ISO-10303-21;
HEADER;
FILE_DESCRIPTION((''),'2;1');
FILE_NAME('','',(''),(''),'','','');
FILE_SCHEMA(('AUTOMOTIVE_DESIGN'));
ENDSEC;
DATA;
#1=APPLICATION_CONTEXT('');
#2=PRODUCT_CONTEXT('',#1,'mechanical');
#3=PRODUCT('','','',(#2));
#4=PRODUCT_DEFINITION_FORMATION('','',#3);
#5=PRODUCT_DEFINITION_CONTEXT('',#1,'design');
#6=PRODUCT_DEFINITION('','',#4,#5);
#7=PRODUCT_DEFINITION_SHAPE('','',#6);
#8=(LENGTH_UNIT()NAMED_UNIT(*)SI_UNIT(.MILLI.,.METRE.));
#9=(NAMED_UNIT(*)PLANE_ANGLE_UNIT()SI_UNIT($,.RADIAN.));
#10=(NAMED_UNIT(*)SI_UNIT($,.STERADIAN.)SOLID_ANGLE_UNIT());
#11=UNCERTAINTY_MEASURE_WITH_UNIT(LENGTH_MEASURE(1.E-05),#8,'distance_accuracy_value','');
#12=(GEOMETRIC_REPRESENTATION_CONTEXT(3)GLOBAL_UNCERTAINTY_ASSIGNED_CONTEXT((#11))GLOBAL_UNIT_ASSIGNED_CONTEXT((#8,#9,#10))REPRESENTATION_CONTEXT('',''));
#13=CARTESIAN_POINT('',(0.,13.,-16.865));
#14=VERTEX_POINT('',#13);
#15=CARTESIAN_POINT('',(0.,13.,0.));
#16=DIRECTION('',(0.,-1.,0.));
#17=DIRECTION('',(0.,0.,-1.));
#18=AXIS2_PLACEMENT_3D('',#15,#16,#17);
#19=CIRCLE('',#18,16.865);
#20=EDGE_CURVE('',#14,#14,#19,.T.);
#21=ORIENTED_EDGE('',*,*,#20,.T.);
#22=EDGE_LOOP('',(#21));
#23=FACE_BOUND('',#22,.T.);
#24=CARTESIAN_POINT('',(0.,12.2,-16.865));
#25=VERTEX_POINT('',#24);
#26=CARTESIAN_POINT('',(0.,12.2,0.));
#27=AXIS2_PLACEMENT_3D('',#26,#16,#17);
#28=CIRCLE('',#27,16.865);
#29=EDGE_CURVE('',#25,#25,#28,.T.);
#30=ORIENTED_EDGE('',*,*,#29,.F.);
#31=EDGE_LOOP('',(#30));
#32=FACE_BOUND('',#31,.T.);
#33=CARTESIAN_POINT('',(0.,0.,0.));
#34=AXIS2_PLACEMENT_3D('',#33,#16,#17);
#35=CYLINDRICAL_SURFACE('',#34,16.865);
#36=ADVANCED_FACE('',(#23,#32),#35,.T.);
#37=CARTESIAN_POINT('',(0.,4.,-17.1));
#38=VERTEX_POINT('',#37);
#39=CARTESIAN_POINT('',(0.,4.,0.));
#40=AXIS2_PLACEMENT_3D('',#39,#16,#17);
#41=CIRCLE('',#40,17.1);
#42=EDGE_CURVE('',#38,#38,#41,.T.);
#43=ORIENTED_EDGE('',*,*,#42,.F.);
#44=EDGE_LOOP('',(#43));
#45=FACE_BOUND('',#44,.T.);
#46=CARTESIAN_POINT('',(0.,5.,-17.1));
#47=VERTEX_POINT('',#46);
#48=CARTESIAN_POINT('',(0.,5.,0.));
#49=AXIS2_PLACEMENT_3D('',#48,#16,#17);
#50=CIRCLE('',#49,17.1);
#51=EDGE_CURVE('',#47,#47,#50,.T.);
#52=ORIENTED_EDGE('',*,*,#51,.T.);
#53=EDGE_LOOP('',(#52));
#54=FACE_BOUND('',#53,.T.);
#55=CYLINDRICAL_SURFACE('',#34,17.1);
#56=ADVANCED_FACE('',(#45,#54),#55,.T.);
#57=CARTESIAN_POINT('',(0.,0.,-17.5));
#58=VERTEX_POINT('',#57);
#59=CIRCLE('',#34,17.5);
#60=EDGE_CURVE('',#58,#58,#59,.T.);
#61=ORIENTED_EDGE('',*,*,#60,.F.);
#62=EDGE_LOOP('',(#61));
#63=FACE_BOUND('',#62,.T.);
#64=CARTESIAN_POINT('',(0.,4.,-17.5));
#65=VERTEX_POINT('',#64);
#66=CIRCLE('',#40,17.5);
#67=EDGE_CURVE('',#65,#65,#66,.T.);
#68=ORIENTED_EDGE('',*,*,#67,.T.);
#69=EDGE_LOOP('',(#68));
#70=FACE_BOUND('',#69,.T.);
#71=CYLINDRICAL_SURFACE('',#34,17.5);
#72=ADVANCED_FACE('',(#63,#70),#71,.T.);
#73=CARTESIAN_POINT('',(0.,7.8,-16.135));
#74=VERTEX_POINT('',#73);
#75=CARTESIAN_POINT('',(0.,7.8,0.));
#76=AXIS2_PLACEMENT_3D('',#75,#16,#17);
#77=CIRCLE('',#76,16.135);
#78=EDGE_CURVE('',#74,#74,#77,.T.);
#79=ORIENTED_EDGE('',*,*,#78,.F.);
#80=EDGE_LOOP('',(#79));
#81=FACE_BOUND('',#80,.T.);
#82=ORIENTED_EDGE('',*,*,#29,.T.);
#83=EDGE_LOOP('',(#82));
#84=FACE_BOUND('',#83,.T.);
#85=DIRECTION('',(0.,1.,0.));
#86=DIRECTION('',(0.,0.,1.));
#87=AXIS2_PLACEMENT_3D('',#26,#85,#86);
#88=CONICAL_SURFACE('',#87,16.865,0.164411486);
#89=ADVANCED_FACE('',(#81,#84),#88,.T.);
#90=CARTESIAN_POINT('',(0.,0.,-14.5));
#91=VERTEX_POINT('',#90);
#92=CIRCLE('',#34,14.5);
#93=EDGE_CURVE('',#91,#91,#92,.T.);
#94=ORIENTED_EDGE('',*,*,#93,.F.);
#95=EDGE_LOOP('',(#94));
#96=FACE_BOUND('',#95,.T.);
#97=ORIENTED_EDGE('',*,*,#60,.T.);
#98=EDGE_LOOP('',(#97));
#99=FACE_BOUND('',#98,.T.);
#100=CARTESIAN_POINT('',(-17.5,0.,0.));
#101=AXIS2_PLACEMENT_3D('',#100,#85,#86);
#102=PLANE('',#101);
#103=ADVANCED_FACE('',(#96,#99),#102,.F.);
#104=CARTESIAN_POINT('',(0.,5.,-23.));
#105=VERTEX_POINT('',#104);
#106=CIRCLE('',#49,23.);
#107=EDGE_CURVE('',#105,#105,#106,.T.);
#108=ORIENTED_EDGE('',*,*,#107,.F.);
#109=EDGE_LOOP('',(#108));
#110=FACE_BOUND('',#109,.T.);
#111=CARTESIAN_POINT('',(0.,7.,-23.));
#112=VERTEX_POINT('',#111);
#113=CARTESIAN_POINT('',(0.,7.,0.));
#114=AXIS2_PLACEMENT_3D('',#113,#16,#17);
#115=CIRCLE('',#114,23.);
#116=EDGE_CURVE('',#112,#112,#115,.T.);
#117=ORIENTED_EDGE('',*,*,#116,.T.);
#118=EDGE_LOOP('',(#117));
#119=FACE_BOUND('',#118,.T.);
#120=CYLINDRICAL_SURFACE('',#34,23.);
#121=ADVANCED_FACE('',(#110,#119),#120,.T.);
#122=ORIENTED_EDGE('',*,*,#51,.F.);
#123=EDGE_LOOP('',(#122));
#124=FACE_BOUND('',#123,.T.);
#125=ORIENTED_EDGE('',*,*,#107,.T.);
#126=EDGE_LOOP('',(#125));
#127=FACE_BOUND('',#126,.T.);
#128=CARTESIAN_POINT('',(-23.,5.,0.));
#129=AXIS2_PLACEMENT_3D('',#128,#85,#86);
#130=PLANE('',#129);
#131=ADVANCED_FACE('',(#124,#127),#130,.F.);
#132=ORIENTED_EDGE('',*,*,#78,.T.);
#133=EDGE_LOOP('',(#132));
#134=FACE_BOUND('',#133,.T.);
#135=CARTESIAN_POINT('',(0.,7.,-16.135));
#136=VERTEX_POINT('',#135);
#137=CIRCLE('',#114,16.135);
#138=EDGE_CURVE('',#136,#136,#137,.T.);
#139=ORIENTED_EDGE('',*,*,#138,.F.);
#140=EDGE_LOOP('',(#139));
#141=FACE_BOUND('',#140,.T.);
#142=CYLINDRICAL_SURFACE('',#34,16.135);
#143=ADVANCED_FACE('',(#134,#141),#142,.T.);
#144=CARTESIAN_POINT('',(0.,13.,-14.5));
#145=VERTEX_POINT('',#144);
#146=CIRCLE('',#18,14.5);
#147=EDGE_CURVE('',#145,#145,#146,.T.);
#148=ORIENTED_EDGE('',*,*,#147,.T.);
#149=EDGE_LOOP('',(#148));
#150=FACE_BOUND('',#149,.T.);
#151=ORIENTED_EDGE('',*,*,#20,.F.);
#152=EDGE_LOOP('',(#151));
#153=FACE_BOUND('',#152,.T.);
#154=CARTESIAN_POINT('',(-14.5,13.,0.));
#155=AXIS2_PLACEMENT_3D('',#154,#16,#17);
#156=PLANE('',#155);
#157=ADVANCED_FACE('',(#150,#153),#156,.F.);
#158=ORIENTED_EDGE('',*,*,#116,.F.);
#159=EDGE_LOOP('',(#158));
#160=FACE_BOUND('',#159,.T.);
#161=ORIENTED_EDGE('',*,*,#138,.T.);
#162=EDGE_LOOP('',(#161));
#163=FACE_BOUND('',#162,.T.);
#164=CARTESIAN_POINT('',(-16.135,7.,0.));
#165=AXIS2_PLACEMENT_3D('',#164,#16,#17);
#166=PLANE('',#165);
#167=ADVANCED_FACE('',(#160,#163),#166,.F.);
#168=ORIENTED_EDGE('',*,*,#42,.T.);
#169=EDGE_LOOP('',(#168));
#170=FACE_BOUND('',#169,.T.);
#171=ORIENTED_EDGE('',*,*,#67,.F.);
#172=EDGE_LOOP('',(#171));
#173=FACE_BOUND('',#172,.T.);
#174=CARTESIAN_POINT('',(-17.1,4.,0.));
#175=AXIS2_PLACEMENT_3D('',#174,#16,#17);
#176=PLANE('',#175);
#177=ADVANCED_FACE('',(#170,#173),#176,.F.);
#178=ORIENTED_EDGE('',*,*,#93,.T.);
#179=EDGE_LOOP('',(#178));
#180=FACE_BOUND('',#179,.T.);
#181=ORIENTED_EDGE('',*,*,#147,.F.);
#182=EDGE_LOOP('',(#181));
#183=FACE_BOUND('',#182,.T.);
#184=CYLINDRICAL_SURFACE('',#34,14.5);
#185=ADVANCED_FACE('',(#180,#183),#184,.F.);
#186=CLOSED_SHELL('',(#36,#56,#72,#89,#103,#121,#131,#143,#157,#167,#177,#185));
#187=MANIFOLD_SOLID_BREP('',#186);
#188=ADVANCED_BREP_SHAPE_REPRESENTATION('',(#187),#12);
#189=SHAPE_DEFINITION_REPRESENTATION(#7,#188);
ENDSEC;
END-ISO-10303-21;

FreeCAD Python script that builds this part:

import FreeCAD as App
import Part
import Sketcher

V = App.Vector


def add_polygon(sketch, points):
    """Adds a closed chain of lines whose ends are joined by coincident constraints."""
    first, n = sketch.GeometryCount, len(points)
    for a, b in zip(points, points[1:] + points[:1]):
        sketch.addGeometry(Part.LineSegment(App.Vector(*a, 0), App.Vector(*b, 0)), False)
    for i in range(n):
        sketch.addConstraint(Sketcher.Constraint("Coincident", first + i, 2, first + (i + 1) % n, 1))

doc = App.newDocument("Part")
body = doc.addObject("PartDesign::Body", "Body")

# Sketch on XY plane
sketch1 = doc.addObject("Sketcher::SketchObject", "Sketch")
body.addObject(sketch1)
sketch1.AttachmentSupport = (doc.XY_Plane, [""])
sketch1.MapMode = "FlatFace"
add_polygon(sketch1, [(-14.5, 0), (-14.5, 13), (-16.865, 13), (-16.865, 12.2), (-16.135, 7.8), (-16.135, 7), (-23, 7), (-23, 5), (-17.1, 5), (-17.1, 4), (-17.5, 4), (-17.5, 0)])  # lines 0-11
sketch1.addConstraint(Sketcher.Constraint("Vertical", 0))
sketch1.addConstraint(Sketcher.Constraint("Horizontal", 1))
sketch1.addConstraint(Sketcher.Constraint("Vertical", 2))
sketch1.addConstraint(Sketcher.Constraint("Vertical", 4))
sketch1.addConstraint(Sketcher.Constraint("Horizontal", 5))
sketch1.addConstraint(Sketcher.Constraint("Vertical", 6))
sketch1.addConstraint(Sketcher.Constraint("Horizontal", 7))
sketch1.addConstraint(Sketcher.Constraint("Vertical", 8))
sketch1.addConstraint(Sketcher.Constraint("Horizontal", 9))
sketch1.addConstraint(Sketcher.Constraint("Vertical", 10))
sketch1.addConstraint(Sketcher.Constraint("Horizontal", 11))
sketch1.addConstraint(Sketcher.Constraint("PointOnObject", 10, 2, -1))
sketch1.addConstraint(Sketcher.Constraint("Equal", 2, 4))
sketch1.addConstraint(Sketcher.Constraint("DistanceX", 11, 1, 11, 2, 3.0))
sketch1.addConstraint(Sketcher.Constraint("DistanceY", 0, 1, 0, 2, 13.0))
sketch1.addConstraint(Sketcher.Constraint("DistanceY", 6, 2, 6, 1, 2.0))
sketch1.addConstraint(Sketcher.Constraint("DistanceY", 8, 2, 8, 1, 1.0))
sketch1.addConstraint(Sketcher.Constraint("DistanceY", 10, 2, 10, 1, 4.0))
sketch1.addConstraint(Sketcher.Constraint("DistanceX", 7, 1, 7, 2, 5.9))
sketch1.addConstraint(Sketcher.Constraint("DistanceX", 9, 2, 9, 1, 0.4))
sketch1.addConstraint(Sketcher.Constraint("DistanceY", 2, 2, 2, 1, 0.8))
sketch1.addConstraint(Sketcher.Constraint("DistanceX", 5, 2, -1, 1, 23.0))
sketch1.addConstraint(Sketcher.Constraint("DistanceX", 1, 2, 1, 1, 2.365))
sketch1.addConstraint(Sketcher.Constraint("DistanceX", 5, 2, 5, 1, 6.865))
revolution = doc.addObject("PartDesign::Revolution", "Revolution")
body.addObject(revolution)
revolution.Profile = sketch1
revolution.ReferenceAxis = (sketch1, ["V_Axis"])
revolution.Angle = 360

doc.recompute()
